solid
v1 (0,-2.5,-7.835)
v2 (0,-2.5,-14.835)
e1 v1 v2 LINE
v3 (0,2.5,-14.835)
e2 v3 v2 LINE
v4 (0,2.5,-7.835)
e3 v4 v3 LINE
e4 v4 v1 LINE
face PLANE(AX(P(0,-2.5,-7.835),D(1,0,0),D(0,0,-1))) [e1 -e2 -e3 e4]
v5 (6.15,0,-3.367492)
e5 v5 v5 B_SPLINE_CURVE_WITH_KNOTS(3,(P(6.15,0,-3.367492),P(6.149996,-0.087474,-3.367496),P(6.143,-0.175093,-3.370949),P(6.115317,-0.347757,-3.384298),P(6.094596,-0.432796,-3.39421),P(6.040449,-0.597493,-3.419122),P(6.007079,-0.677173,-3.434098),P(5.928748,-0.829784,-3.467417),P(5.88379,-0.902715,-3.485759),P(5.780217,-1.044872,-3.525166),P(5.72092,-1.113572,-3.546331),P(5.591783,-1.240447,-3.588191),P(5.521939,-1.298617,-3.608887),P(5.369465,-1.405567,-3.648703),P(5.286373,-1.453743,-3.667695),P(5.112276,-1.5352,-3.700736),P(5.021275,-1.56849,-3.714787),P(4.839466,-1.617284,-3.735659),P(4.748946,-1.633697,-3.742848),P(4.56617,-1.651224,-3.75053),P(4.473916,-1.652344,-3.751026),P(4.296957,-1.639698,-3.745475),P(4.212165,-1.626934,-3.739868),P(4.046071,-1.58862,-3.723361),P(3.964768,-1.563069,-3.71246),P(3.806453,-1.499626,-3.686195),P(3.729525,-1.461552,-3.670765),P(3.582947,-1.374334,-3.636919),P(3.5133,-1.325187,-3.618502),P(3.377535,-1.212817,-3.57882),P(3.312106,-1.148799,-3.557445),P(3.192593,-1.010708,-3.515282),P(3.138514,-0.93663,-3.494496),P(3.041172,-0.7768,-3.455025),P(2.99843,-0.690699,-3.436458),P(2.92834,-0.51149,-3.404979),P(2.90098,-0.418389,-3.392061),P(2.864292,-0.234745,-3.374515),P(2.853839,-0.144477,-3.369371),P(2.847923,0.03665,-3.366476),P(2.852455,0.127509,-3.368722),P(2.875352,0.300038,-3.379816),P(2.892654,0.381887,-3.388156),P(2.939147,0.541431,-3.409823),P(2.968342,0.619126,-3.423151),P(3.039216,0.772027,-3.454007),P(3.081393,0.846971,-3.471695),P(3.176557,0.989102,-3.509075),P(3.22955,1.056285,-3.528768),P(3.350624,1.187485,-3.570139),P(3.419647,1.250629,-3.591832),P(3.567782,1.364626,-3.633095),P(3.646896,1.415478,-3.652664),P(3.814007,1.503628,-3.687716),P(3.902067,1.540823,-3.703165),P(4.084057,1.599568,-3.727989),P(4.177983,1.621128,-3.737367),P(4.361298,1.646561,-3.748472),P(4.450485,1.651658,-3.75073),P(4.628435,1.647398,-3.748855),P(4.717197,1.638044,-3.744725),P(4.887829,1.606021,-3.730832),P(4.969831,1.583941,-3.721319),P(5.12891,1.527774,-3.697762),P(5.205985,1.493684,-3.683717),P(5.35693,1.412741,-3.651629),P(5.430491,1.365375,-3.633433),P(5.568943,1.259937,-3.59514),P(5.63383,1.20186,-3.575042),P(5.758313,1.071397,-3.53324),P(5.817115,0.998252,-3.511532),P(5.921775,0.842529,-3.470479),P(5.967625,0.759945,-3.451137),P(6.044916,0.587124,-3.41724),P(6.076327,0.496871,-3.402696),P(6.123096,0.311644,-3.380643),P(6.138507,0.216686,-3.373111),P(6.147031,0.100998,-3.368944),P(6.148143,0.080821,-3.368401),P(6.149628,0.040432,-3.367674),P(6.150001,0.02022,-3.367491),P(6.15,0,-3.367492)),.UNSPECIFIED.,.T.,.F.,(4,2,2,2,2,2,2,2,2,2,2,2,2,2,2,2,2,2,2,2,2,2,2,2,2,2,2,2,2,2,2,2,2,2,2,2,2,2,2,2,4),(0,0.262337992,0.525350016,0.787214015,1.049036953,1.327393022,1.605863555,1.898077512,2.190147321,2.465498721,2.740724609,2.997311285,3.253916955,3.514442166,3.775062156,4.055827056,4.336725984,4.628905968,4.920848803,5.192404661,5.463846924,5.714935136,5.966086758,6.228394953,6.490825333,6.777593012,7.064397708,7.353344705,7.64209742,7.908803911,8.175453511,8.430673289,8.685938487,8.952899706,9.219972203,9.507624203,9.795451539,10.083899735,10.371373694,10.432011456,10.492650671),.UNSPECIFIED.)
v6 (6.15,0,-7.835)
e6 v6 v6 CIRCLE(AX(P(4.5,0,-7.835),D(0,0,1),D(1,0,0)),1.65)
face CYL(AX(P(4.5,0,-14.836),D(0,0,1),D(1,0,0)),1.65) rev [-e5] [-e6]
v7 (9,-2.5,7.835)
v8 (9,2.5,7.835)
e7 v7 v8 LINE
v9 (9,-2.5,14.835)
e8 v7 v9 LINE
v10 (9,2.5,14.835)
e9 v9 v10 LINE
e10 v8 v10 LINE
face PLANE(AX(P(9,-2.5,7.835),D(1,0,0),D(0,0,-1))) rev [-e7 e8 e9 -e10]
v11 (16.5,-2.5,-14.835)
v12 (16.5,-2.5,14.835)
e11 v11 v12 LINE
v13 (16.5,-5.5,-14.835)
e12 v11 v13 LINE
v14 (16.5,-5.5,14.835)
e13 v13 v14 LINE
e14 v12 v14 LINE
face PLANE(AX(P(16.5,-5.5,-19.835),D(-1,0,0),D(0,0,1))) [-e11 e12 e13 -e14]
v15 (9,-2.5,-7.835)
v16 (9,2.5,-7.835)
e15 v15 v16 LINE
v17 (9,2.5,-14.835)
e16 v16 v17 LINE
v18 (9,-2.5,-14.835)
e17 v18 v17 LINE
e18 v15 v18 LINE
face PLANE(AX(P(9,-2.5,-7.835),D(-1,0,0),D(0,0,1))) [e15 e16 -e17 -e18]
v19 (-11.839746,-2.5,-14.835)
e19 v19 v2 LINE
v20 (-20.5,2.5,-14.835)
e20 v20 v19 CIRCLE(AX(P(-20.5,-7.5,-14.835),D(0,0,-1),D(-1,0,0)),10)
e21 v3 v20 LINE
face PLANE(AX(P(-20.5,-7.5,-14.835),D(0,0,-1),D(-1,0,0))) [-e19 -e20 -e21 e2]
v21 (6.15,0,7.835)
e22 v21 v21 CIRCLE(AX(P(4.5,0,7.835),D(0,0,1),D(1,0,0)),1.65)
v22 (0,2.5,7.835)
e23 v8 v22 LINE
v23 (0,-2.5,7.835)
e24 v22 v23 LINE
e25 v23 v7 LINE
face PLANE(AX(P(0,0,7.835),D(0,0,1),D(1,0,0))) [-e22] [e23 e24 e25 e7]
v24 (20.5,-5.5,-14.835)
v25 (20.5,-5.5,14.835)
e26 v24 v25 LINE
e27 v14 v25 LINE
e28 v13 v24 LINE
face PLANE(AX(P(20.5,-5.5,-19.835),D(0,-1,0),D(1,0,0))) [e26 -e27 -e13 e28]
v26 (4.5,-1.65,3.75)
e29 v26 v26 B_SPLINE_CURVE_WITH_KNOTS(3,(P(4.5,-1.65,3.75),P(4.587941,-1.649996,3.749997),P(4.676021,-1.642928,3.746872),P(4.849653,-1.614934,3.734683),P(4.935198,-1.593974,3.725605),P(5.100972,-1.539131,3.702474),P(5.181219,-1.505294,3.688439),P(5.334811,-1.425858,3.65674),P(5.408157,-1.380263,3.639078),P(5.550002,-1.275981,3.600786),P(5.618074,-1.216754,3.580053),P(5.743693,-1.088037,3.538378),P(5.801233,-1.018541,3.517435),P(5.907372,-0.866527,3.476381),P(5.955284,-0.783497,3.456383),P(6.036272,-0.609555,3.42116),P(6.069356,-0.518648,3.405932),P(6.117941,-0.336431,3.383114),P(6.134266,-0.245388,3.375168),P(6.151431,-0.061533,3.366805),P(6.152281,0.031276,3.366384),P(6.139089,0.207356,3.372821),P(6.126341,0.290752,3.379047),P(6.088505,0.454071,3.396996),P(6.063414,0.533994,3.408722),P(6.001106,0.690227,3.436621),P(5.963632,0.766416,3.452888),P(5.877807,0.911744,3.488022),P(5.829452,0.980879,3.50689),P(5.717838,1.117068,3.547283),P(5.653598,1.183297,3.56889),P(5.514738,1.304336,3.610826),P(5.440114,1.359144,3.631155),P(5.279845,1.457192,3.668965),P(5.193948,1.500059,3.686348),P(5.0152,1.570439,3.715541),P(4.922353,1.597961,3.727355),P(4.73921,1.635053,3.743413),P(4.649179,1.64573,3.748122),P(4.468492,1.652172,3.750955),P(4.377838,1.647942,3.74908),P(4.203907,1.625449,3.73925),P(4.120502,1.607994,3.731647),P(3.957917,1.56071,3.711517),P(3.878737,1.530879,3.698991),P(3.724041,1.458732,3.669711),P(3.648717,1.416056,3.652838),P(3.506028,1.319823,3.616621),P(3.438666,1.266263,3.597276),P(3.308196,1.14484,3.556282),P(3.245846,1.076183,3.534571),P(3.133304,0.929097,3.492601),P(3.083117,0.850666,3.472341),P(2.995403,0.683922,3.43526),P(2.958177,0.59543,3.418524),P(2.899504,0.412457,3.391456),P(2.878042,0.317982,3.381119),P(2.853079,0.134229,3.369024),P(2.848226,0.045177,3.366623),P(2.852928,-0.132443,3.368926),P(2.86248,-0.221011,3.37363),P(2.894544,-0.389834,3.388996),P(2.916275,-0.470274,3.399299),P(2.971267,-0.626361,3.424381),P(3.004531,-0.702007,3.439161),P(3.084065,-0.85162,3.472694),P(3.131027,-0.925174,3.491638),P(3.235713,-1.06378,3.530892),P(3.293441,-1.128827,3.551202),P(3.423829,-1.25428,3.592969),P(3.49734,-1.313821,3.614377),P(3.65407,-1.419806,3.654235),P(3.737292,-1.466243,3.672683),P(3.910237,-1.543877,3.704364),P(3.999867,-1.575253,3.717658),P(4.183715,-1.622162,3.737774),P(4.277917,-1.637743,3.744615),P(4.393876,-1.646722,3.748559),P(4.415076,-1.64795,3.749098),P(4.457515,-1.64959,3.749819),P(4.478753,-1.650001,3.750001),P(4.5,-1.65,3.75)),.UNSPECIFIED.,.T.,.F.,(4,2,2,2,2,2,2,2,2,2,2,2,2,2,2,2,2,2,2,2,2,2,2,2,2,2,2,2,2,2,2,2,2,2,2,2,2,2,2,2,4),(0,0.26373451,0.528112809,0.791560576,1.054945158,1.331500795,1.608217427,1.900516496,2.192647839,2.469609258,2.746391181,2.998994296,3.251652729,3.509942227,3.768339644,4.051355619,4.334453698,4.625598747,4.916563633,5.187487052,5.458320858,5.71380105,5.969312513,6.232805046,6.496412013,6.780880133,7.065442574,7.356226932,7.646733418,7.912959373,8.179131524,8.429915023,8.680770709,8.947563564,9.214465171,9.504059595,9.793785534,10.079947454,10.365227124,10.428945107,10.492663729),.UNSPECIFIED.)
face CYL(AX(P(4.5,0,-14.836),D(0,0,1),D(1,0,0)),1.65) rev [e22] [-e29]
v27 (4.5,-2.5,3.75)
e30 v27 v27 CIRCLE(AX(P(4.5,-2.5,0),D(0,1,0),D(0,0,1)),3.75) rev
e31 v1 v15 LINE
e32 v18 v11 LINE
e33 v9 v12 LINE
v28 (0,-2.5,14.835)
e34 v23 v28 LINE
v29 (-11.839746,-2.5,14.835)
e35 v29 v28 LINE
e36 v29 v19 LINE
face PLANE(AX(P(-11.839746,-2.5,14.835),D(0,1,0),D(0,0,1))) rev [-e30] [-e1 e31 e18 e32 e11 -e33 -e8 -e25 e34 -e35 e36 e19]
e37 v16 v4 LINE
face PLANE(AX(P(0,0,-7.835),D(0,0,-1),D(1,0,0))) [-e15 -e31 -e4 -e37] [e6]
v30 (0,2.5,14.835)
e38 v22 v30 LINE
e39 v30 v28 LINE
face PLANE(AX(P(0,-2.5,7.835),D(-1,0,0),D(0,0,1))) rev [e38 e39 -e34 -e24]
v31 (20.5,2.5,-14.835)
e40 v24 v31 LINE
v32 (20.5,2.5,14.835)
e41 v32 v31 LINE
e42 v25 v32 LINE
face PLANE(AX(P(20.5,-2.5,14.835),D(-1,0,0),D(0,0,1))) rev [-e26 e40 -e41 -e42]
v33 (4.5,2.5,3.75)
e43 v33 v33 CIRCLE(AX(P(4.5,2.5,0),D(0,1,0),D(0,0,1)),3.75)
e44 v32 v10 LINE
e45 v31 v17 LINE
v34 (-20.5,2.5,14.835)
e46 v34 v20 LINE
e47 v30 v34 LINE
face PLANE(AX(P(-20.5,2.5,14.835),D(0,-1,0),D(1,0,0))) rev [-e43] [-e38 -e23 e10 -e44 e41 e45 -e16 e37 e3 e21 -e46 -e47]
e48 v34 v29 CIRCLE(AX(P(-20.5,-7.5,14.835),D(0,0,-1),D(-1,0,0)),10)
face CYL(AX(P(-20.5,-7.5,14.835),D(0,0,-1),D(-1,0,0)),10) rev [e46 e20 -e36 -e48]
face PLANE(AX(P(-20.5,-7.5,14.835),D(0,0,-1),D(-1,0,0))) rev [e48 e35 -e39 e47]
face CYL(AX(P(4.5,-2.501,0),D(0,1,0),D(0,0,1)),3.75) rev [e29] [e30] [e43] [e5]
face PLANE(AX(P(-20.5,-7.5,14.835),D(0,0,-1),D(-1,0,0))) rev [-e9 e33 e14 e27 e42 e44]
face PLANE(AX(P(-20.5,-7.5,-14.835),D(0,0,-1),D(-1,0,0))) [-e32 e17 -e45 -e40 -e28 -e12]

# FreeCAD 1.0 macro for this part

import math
import FreeCAD as App
import Part
import Sketcher
from FreeCAD import Vector

doc = App.newDocument("Part")
body = doc.addObject("PartDesign::Body", "Body")

sketch1 = doc.addObject("Sketcher::SketchObject", "Sketch")
body.addObject(sketch1)
sketch1.AttachmentSupport = (doc.XY_Plane, [""])
sketch1.MapMode = "FlatFace"
sketch1.addGeometry([
    Part.LineSegment(Vector(-11.839746, -2.5, 0), Vector(20.5, -2.5, 0)),
    Part.LineSegment(Vector(20.5, -2.5, 0), Vector(20.5, 2.5, 0)),
    Part.LineSegment(Vector(20.5, 2.5, 0), Vector(-20.5, 2.5, 0)),
    Part.ArcOfCircle(Part.Circle(Vector(-20.5, -7.5, 0), Vector(0, 0, 1), 10), math.radians(30), math.radians(90)),
], False)
sketch1.addConstraint([
    Sketcher.Constraint("Coincident", 0, 2, 1, 1),
    Sketcher.Constraint("Coincident", 1, 2, 2, 1),
    Sketcher.Constraint("Tangent", 2, 2, 3, 2),
    Sketcher.Constraint("Coincident", 3, 1, 0, 1),
    Sketcher.Constraint("Horizontal", 0),
    Sketcher.Constraint("Vertical", 1),
    Sketcher.Constraint("Horizontal", 2),
    Sketcher.Constraint("Symmetric", 0, 2, 2, 2, -1, 1),
    Sketcher.Constraint("Radius", 3, 10.0),
    Sketcher.Constraint("DistanceX", 2, 2, 2, 1, 41.0),
    Sketcher.Constraint("DistanceY", 1, 1, 1, 2, 5.0),
])
pad1 = doc.addObject("PartDesign::Pad", "Pad")
body.addObject(pad1)
pad1.Profile = sketch1
pad1.Length = 29.67
pad1.Midplane = True

sketch2 = doc.addObject("Sketcher::SketchObject", "Sketch001")
body.addObject(sketch2)
sketch2.AttachmentSupport = (doc.XY_Plane, [""])
sketch2.MapMode = "FlatFace"
sketch2.AttachmentOffset = App.Placement(Vector(0, 0, 14.835), App.Rotation())
sketch2.addGeometry(Part.Circle(Vector(4.5, 0, 0), Vector(0, 0, 1), 1.65), False)
sketch2.addConstraint([
    Sketcher.Constraint("PointOnObject", 0, 3, -1),
    Sketcher.Constraint("Diameter", 0, 3.3),
    Sketcher.Constraint("DistanceX", -1, 1, 0, 3, 4.5),
])
pocket1 = doc.addObject("PartDesign::Pocket", "Pocket")
body.addObject(pocket1)
pocket1.Profile = sketch2
pocket1.Type = "UpToFirst"

sketch3 = doc.addObject("Sketcher::SketchObject", "Sketch002")
body.addObject(sketch3)
sketch3.AttachmentSupport = (doc.XY_Plane, [""])
sketch3.MapMode = "FlatFace"
sketch3.AttachmentOffset = App.Placement(Vector(0, 0, 14.835), App.Rotation())
sketch3.addGeometry([
    Part.LineSegment(Vector(0, 2.5, 0), Vector(0, -2.5, 0)),
    Part.LineSegment(Vector(0, -2.5, 0), Vector(9, -2.5, 0)),
    Part.LineSegment(Vector(9, -2.5, 0), Vector(9, 2.5, 0)),
    Part.LineSegment(Vector(9, 2.5, 0), Vector(0, 2.5, 0)),
    Part.Circle(Vector(4.5, 0, 0), Vector(0, 0, 1), 1.65),
], False)
sketch3.addConstraint([
    Sketcher.Constraint("Coincident", 0, 2, 1, 1),
    Sketcher.Constraint("Coincident", 1, 2, 2, 1),
    Sketcher.Constraint("Coincident", 2, 2, 3, 1),
    Sketcher.Constraint("Coincident", 3, 2, 0, 1),
    Sketcher.Constraint("Vertical", 0),
    Sketcher.Constraint("Horizontal", 1),
    Sketcher.Constraint("Vertical", 2),
    Sketcher.Constraint("Horizontal", 3),
    Sketcher.Constraint("Symmetric", 0, 2, 3, 2, -1, 1),
    Sketcher.Constraint("PointOnObject", 4, 3, -1),
    Sketcher.Constraint("Diameter", 4, 3.3),
    Sketcher.Constraint("DistanceX", 1, 1, 1, 2, 9.0),
    Sketcher.Constraint("DistanceY", 0, 2, 0, 1, 5.0),
    Sketcher.Constraint("DistanceX", -1, 1, 4, 3, 4.5),
])
pocket2 = doc.addObject("PartDesign::Pocket", "Pocket001")
body.addObject(pocket2)
pocket2.Profile = sketch3
pocket2.Length = 7
doc.recompute()

mirrored = doc.addObject("PartDesign::Mirrored", "Mirrored")
body.addObject(mirrored)
mirrored.Originals = [pocket2]
mirrored.MirrorPlane = (doc.XY_Plane, [""])
body.Tip = mirrored

sketch4 = doc.addObject("Sketcher::SketchObject", "Sketch003")
body.addObject(sketch4)
sketch4.AttachmentSupport = (doc.XZ_Plane, [""])
sketch4.MapMode = "FlatFace"
sketch4.AttachmentOffset = App.Placement(Vector(0, 0, -2.5), App.Rotation())
sketch4.addGeometry(Part.Circle(Vector(4.5, 0, 0), Vector(0, 0, 1), 3.75), False)
sketch4.addConstraint([
    Sketcher.Constraint("PointOnObject", 0, 3, -1),
    Sketcher.Constraint("Diameter", 0, 7.5),
    Sketcher.Constraint("DistanceX", -1, 1, 0, 3, 4.5),
])
pocket3 = doc.addObject("PartDesign::Pocket", "Pocket002")
body.addObject(pocket3)
pocket3.Profile = sketch4
pocket3.Length = 5
pocket3.Reversed = True

sketch5 = doc.addObject("Sketcher::SketchObject", "Sketch004")
body.addObject(sketch5)
sketch5.AttachmentSupport = (doc.XY_Plane, [""])
sketch5.MapMode = "FlatFace"
sketch5.AttachmentOffset = App.Placement(Vector(0, 0, 14.835), App.Rotation())
sketch5.addGeometry([
    Part.LineSegment(Vector(16.5, -2.5, 0), Vector(16.5, -5.5, 0)),
    Part.LineSegment(Vector(16.5, -5.5, 0), Vector(20.5, -5.5, 0)),
    Part.LineSegment(Vector(20.5, -5.5, 0), Vector(20.5, -2.5, 0)),
    Part.LineSegment(Vector(20.5, -2.5, 0), Vector(16.5, -2.5, 0)),
], False)
sketch5.addConstraint([
    Sketcher.Constraint("Coincident", 0, 2, 1, 1),
    Sketcher.Constraint("Coincident", 1, 2, 2, 1),
    Sketcher.Constraint("Coincident", 2, 2, 3, 1),
    Sketcher.Constraint("Coincident", 3, 2, 0, 1),
    Sketcher.Constraint("Vertical", 0),
    Sketcher.Constraint("Horizontal", 1),
    Sketcher.Constraint("Vertical", 2),
    Sketcher.Constraint("Horizontal", 3),
    Sketcher.Constraint("DistanceX", 1, 1, 1, 2, 4.0),
    Sketcher.Constraint("DistanceY", 0, 2, 0, 1, 3.0),
    Sketcher.Constraint("DistanceX", -1, 1, 0, 2, 16.5),
    Sketcher.Constraint("DistanceY", 0, 2, -1, 1, 5.5),
])
pad2 = doc.addObject("PartDesign::Pad", "Pad001")
body.addObject(pad2)
pad2.Profile = sketch5
pad2.Length = 29.67
pad2.Reversed = True

doc.recompute()
